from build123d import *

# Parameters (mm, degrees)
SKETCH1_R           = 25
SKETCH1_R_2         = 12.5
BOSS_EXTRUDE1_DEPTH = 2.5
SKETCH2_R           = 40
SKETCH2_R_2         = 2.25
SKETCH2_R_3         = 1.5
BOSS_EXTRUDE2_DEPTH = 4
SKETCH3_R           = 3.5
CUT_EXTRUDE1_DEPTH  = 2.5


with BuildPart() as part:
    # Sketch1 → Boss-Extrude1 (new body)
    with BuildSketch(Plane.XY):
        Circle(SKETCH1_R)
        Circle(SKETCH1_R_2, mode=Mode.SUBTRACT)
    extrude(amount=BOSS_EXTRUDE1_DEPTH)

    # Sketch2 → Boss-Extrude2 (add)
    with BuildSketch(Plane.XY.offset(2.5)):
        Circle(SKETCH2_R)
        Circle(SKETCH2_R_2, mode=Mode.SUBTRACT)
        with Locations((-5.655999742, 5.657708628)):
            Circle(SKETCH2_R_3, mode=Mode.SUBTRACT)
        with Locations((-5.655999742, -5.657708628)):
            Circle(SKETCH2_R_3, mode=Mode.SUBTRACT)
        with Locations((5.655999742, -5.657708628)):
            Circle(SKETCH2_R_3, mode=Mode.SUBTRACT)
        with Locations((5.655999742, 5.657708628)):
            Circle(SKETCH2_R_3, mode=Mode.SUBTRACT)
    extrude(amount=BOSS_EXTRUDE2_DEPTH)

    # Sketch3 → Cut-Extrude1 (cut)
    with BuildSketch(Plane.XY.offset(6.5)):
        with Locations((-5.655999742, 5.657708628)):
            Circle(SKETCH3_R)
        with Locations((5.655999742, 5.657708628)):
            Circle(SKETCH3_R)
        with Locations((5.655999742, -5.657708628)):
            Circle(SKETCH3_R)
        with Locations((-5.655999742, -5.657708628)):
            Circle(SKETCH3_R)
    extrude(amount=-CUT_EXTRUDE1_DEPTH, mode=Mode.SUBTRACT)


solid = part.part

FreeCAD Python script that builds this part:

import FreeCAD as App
import Part
import Sketcher

V = App.Vector

doc = App.newDocument("Part")
body = doc.addObject("PartDesign::Body", "Body")

# Sketch on XY plane
sketch1 = body.newObject("Sketcher::SketchObject", "Sketch")
sketch1.AttachmentSupport = (doc.getObject("XY_Plane"), [""])
sketch1.MapMode = "FlatFace"
sketch1.addGeometry(Part.Circle(V(0, 0, 0), V(0, 0, 1), 25), False)
sketch1.addGeometry(Part.Circle(V(0, 0, 0), V(0, 0, 1), 12), False)
sketch1.addConstraint(Sketcher.Constraint("Coincident", 0, 3, -1, 1))
sketch1.addConstraint(Sketcher.Constraint("Coincident", 1, 3, -1, 1))
sketch1.addConstraint(Sketcher.Constraint("Diameter", 0, 50.0))
sketch1.addConstraint(Sketcher.Constraint("Diameter", 1, 25.0))
pad1 = body.newObject("PartDesign::Pad", "Pad")
pad1.Profile = sketch1
pad1.Length = 2.5

# Sketch on XY plane
sketch2 = body.newObject("Sketcher::SketchObject", "Sketch001")
sketch2.AttachmentSupport = (doc.getObject("XY_Plane"), [""])
sketch2.MapMode = "FlatFace"
sketch2.AttachmentOffset = App.Placement(V(0, 0, 2.5), App.Rotation())
sketch2.addGeometry(Part.Circle(V(0, 0, 0), V(0, 0, 1), 40), False)
sketch2.addGeometry(Part.Circle(V(-5.7, -5.7, 0), V(0, 0, 1), 1.5), False)
sketch2.addGeometry(Part.Circle(V(5.7, -5.7, 0), V(0, 0, 1), 1.5), False)
sketch2.addGeometry(Part.Circle(V(-5.7, 5.7, 0), V(0, 0, 1), 1.5), False)
sketch2.addGeometry(Part.Circle(V(0, 0, 0), V(0, 0, 1), 2.2), False)
sketch2.addGeometry(Part.Circle(V(5.7, 5.7, 0), V(0, 0, 1), 1.5), False)
sketch2.addConstraint(Sketcher.Constraint("Coincident", 0, 3, -1, 1))
sketch2.addConstraint(Sketcher.Constraint("Coincident", 4, 3, -1, 1))
sketch2.addConstraint(Sketcher.Constraint("Equal", 1, 2))
sketch2.addConstraint(Sketcher.Constraint("Equal", 2, 3))
sketch2.addConstraint(Sketcher.Constraint("Equal", 3, 5))
sketch2.addConstraint(Sketcher.Constraint("Symmetric", 2, 3, 3, 3, -1, 1))
sketch2.addConstraint(Sketcher.Constraint("Symmetric", 1, 3, 5, 3, -1, 1))
sketch2.addConstraint(Sketcher.Constraint("Symmetric", 1, 3, 2, 3, -2))
sketch2.addConstraint(Sketcher.Constraint("Diameter", 0, 80.0))
sketch2.addConstraint(Sketcher.Constraint("Diameter", 1, 3.0))
sketch2.addConstraint(Sketcher.Constraint("Diameter", 4, 4.5))
sketch2.addConstraint(Sketcher.Constraint("DistanceX", 1, 3, -1, 1, 5.656))
sketch2.addConstraint(Sketcher.Constraint("DistanceY", 1, 3, -1, 1, 5.657709))
pad2 = body.newObject("PartDesign::Pad", "Pad001")
pad2.Profile = sketch2
pad2.Length = 4

# Sketch on XY plane
sketch3 = body.newObject("Sketcher::SketchObject", "Sketch002")
sketch3.AttachmentSupport = (doc.getObject("XY_Plane"), [""])
sketch3.MapMode = "FlatFace"
sketch3.AttachmentOffset = App.Placement(V(0, 0, 6.5), App.Rotation())
sketch3.addGeometry(Part.Circle(V(-5.7, 5.7, 0), V(0, 0, 1), 3.5), False)
sketch3.addGeometry(Part.Circle(V(5.7, 5.7, 0), V(0, 0, 1), 3.5), False)
sketch3.addGeometry(Part.Circle(V(5.7, -5.7, 0), V(0, 0, 1), 3.5), False)
sketch3.addGeometry(Part.Circle(V(-5.7, -5.7, 0), V(0, 0, 1), 3.5), False)
sketch3.addConstraint(Sketcher.Constraint("Equal", 0, 1))
sketch3.addConstraint(Sketcher.Constraint("Equal", 1, 2))
sketch3.addConstraint(Sketcher.Constraint("Equal", 2, 3))
sketch3.addConstraint(Sketcher.Constraint("Symmetric", 0, 3, 2, 3, -1, 1))
sketch3.addConstraint(Sketcher.Constraint("Symmetric", 1, 3, 3, 3, -1, 1))
sketch3.addConstraint(Sketcher.Constraint("Symmetric", 0, 3, 1, 3, -2))
sketch3.addConstraint(Sketcher.Constraint("Diameter", 0, 7.0))
sketch3.addConstraint(Sketcher.Constraint("DistanceX", 0, 3, -1, 1, 5.656))
sketch3.addConstraint(Sketcher.Constraint("DistanceY", -1, 1, 0, 3, 5.657709))
pocket1 = body.newObject("PartDesign::Pocket", "Pocket")
pocket1.Profile = sketch3
pocket1.Length = 2.5

doc.recompute()
